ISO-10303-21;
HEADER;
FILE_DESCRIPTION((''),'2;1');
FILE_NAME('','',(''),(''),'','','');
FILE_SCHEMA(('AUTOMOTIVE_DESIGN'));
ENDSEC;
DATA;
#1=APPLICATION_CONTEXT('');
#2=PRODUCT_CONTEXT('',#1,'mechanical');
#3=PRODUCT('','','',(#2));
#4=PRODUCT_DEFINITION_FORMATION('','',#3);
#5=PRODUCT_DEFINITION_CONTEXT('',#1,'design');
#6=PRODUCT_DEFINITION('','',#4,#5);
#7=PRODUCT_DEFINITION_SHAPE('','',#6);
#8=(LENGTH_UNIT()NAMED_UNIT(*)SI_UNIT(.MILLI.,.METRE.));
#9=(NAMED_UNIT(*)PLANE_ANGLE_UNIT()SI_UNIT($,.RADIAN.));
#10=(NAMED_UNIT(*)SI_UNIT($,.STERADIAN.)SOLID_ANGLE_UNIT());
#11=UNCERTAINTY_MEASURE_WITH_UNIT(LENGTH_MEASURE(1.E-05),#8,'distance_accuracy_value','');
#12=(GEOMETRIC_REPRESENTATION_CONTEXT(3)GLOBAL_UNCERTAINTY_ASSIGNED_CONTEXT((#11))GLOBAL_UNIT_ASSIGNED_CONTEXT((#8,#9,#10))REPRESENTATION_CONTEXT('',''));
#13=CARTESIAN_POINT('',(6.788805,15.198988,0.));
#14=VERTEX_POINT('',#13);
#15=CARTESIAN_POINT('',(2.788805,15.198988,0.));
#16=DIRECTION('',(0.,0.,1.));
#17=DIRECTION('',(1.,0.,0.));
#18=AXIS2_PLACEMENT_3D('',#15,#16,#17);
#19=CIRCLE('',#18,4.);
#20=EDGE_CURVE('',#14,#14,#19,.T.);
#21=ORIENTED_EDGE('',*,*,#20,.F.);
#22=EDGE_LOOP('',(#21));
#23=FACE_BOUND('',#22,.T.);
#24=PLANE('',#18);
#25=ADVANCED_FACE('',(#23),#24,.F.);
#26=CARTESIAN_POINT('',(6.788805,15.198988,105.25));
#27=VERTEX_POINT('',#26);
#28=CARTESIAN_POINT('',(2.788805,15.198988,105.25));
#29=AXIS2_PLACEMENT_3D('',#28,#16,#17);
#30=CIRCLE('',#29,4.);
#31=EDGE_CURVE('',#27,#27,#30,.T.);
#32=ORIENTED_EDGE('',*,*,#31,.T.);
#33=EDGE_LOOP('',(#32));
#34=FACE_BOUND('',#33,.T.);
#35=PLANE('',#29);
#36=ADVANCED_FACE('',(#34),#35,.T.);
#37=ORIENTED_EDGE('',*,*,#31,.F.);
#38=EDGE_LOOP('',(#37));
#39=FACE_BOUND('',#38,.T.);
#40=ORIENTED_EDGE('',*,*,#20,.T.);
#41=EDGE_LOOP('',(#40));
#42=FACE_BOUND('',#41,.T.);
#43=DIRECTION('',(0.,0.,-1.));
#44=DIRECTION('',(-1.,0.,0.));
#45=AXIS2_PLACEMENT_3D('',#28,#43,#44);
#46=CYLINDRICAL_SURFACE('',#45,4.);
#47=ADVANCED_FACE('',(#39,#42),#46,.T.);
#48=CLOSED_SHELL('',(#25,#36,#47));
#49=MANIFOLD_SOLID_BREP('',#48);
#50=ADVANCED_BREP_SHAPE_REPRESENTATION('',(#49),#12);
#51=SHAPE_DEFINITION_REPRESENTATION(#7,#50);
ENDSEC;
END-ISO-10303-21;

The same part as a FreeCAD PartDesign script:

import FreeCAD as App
import Part
import Sketcher

V = App.Vector

doc = App.newDocument("Part")
body = doc.addObject("PartDesign::Body", "Body")

# Sketch on XY plane
sketch1 = body.newObject("Sketcher::SketchObject", "Sketch")
sketch1.AttachmentSupport = (doc.getObject("XY_Plane"), [""])
sketch1.MapMode = "FlatFace"
sketch1.addGeometry(Part.Circle(V(2.788805, 15.198988, 0), V(0, 0, 1), 4), False)
sketch1.addConstraint([
    Sketcher.Constraint("Diameter", 0, 8.0),
    Sketcher.Constraint("DistanceY", -1, 1, 0, 3, 15.198988),
    Sketcher.Constraint("DistanceX", -1, 1, 0, 3, 2.788805),
])
pad1 = body.newObject("PartDesign::Pad", "Pad")
pad1.Profile = sketch1
pad1.Length = 105.25

doc.recompute()
